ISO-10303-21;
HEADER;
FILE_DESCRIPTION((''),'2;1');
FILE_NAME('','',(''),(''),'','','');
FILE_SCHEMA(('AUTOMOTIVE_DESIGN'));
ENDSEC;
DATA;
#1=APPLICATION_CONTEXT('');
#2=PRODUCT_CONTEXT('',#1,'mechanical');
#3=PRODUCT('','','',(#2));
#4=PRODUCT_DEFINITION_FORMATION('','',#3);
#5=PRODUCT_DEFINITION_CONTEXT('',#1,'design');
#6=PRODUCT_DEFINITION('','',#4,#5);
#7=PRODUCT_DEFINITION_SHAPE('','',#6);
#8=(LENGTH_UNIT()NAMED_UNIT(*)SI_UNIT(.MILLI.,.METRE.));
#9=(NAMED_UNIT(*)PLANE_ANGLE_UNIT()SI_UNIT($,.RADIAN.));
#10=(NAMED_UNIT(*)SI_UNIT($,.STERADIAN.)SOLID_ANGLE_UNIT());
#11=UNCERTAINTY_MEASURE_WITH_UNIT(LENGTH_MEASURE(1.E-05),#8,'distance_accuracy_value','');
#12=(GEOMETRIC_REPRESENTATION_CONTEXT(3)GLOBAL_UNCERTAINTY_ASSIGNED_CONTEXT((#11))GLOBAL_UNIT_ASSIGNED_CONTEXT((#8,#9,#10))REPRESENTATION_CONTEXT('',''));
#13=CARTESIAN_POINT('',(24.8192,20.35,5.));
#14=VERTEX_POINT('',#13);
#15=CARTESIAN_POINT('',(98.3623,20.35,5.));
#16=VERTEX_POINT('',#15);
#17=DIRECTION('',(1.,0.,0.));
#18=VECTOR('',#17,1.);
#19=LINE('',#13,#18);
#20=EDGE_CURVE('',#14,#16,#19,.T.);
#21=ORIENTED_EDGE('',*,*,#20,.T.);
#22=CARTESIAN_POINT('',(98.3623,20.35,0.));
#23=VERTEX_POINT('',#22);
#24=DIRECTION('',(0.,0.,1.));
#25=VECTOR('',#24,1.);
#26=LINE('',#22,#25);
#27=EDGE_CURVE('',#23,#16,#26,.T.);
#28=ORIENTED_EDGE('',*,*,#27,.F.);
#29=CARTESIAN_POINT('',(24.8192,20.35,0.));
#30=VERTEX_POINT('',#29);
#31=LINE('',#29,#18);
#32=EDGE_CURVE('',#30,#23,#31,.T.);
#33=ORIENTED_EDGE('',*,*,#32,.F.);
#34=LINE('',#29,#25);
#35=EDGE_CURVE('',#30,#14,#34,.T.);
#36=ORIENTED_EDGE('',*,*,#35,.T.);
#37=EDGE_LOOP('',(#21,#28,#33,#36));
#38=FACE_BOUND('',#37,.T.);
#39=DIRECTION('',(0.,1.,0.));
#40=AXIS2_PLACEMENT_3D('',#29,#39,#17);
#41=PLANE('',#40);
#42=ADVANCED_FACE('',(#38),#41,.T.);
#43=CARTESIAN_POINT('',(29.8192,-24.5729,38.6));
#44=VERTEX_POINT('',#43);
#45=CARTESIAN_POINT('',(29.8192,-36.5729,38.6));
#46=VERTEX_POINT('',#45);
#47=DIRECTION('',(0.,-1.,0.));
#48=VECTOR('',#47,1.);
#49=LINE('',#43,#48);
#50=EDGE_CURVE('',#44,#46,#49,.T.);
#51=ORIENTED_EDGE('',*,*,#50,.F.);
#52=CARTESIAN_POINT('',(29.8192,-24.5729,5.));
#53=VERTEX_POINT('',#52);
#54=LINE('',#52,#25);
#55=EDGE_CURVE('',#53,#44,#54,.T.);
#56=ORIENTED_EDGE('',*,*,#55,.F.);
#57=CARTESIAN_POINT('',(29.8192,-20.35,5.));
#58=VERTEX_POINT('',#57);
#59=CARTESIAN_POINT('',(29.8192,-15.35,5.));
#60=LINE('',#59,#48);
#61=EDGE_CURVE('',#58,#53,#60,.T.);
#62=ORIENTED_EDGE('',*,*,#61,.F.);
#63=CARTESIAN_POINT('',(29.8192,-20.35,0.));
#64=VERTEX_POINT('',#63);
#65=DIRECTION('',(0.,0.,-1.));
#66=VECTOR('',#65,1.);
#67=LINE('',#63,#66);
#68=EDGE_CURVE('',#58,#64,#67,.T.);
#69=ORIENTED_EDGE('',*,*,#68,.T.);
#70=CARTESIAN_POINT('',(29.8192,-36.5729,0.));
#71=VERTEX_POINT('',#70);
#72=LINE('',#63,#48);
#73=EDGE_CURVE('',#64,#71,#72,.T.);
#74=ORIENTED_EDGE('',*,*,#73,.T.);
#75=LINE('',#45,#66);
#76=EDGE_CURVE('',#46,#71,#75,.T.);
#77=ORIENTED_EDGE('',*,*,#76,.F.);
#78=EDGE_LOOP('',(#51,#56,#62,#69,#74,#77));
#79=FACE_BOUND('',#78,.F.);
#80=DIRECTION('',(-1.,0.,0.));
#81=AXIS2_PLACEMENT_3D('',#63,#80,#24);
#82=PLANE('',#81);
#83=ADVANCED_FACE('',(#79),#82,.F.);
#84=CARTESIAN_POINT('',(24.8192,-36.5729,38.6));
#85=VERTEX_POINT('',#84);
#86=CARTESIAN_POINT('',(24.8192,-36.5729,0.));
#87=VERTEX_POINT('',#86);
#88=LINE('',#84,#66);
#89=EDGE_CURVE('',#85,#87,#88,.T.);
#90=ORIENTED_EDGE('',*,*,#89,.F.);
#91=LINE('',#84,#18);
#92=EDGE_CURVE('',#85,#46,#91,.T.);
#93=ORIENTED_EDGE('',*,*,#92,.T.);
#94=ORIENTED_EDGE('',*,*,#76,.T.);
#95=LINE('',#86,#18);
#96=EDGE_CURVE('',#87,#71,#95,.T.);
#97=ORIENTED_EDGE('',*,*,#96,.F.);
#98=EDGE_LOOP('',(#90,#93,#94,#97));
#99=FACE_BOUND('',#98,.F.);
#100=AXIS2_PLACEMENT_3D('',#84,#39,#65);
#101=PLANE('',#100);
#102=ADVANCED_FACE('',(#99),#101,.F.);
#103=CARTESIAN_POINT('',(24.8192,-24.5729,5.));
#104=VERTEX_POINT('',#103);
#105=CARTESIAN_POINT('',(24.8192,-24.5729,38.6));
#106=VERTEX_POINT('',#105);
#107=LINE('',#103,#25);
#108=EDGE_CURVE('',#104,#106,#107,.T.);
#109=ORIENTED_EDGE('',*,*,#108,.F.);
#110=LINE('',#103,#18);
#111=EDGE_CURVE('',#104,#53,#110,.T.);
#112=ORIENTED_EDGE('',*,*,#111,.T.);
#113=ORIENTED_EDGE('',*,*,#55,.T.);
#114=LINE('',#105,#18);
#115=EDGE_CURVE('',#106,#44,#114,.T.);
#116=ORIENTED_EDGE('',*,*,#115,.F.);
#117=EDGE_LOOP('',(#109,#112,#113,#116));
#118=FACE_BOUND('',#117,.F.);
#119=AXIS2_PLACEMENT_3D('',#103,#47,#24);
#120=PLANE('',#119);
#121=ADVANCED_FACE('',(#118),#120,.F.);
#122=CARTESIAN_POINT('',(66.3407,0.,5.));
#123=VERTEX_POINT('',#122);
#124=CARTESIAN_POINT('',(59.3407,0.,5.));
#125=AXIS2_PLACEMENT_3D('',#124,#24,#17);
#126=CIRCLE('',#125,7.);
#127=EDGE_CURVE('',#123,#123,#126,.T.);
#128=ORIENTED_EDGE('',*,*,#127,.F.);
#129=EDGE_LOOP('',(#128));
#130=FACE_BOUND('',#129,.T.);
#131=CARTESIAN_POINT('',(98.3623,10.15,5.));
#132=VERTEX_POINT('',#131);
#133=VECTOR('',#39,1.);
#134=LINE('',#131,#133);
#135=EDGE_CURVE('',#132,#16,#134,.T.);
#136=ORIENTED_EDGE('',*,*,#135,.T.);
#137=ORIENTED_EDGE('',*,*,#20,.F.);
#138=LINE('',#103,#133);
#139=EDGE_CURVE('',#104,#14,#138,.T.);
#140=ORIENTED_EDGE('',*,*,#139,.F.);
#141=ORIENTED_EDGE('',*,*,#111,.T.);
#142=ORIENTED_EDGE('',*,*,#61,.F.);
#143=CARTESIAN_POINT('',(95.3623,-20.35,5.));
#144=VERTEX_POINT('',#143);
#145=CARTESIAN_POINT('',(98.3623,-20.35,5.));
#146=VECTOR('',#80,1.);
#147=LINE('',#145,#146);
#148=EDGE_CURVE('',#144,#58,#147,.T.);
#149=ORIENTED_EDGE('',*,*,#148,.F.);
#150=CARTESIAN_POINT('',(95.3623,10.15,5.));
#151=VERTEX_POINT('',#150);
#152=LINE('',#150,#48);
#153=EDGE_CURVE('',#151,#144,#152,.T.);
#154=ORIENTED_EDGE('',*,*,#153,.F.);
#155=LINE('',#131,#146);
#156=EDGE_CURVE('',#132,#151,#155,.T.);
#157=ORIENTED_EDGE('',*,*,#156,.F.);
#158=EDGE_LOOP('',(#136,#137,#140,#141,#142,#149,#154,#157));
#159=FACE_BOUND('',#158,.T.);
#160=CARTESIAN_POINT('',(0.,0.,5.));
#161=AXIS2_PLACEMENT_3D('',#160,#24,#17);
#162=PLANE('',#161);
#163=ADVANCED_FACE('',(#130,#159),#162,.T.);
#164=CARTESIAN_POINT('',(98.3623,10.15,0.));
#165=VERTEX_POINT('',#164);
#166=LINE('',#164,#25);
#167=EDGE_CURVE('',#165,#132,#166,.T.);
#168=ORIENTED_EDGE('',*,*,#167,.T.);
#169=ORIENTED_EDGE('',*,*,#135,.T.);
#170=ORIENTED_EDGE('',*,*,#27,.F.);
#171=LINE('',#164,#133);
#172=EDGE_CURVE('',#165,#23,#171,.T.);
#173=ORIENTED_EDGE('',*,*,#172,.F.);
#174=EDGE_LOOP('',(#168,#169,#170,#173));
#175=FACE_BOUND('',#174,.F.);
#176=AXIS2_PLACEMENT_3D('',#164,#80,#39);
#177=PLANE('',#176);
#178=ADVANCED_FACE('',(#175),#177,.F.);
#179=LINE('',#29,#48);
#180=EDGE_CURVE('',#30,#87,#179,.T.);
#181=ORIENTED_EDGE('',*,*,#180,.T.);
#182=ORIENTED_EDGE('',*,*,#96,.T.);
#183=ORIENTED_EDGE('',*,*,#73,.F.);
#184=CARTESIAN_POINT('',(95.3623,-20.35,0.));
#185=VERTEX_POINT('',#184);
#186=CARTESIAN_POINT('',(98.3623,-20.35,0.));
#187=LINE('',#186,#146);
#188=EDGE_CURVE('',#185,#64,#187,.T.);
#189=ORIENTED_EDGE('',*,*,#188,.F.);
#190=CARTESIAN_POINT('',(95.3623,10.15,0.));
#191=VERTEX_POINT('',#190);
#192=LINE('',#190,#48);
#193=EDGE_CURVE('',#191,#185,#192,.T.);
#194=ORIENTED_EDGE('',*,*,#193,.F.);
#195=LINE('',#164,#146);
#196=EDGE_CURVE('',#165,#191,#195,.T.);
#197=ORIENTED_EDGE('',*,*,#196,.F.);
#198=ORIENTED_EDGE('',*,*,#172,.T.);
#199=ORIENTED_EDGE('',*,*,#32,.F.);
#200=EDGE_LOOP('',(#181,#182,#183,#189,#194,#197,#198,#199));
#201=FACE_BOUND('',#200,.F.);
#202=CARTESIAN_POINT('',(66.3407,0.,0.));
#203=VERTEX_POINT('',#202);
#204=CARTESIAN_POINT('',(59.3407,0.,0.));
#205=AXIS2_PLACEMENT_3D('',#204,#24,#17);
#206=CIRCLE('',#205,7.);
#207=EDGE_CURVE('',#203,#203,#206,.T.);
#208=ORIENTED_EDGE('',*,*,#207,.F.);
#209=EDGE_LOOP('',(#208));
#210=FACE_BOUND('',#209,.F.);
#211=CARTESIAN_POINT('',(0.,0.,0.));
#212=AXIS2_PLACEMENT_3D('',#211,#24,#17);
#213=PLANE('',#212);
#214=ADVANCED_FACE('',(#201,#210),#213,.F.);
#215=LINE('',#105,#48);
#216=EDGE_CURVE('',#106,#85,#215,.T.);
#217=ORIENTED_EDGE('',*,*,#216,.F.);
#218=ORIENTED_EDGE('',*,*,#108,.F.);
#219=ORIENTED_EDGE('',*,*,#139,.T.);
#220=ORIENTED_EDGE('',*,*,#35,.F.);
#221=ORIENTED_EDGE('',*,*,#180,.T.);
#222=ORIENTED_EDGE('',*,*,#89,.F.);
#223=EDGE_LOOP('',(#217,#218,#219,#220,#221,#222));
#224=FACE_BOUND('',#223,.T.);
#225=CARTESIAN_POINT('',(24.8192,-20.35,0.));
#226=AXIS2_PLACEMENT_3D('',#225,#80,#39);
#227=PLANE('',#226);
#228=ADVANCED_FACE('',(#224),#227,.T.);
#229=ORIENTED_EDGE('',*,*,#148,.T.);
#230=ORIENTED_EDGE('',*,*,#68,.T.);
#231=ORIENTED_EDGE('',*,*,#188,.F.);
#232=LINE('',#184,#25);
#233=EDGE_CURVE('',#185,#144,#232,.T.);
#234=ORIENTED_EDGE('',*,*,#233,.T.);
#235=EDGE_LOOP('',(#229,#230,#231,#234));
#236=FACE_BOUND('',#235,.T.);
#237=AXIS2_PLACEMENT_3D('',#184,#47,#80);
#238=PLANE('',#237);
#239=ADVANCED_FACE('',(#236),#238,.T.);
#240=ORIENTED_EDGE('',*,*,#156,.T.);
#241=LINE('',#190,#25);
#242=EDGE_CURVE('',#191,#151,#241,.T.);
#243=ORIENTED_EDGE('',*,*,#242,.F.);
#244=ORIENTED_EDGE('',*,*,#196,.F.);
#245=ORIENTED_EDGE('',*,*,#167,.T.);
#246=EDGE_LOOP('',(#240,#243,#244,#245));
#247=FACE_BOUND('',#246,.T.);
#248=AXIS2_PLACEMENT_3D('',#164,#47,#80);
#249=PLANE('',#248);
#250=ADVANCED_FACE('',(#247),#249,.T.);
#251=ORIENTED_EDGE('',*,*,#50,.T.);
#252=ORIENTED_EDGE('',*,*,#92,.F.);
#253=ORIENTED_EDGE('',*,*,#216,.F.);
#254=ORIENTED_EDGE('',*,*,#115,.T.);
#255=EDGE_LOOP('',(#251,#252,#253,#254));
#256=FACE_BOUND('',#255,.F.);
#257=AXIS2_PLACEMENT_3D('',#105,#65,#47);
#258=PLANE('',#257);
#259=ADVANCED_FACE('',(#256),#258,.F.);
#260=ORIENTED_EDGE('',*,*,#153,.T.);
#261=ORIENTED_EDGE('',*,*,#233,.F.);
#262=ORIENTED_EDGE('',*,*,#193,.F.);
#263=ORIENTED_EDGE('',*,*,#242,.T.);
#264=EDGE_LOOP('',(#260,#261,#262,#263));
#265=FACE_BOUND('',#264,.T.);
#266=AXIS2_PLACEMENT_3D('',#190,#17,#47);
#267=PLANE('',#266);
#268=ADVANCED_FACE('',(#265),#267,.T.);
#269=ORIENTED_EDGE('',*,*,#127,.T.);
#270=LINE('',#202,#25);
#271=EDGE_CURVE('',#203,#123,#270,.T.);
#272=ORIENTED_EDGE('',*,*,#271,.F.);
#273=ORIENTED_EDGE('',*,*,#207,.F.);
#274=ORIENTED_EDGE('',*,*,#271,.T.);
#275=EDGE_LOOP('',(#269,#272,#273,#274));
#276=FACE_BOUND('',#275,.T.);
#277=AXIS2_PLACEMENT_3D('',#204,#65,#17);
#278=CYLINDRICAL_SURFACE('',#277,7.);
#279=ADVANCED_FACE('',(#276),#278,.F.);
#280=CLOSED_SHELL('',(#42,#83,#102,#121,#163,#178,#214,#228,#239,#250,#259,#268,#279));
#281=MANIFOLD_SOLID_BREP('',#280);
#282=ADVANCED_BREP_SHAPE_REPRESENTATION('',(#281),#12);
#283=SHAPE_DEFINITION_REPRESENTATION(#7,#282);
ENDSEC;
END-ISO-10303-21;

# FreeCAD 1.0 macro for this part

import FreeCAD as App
import Part
import Sketcher
Q = App.Units.Quantity

doc = App.newDocument("Part")
body = doc.addObject("PartDesign::Body", "Body")

# Sketch on XY plane
sketch1 = doc.addObject("Sketcher::SketchObject", "Sketch")
body.addObject(sketch1)
sketch1.AttachmentSupport = (doc.XY_Plane, [""])
sketch1.MapMode = "FlatFace"
sketch1.addGeometry(Part.LineSegment(App.Vector(24.8192, 20.35, 0), App.Vector(24.8192, -20.35, 0)), False)
sketch1.addGeometry(Part.LineSegment(App.Vector(24.8192, -20.35, 0), App.Vector(95.3623, -20.35, 0)), False)
sketch1.addGeometry(Part.LineSegment(App.Vector(95.3623, -20.35, 0), App.Vector(95.3623, 10.15, 0)), False)
sketch1.addGeometry(Part.LineSegment(App.Vector(95.3623, 10.15, 0), App.Vector(98.3623, 10.15, 0)), False)
sketch1.addGeometry(Part.LineSegment(App.Vector(98.3623, 10.15, 0), App.Vector(98.3623, 20.35, 0)), False)
sketch1.addGeometry(Part.LineSegment(App.Vector(98.3623, 20.35, 0), App.Vector(24.8192, 20.35, 0)), False)
sketch1.addGeometry(Part.Circle(App.Vector(59.3407, 0, 0), App.Vector(0, 0, 1), 7), False)
sketch1.addConstraint(Sketcher.Constraint("Coincident", 0, 2, 1, 1))
sketch1.addConstraint(Sketcher.Constraint("Coincident", 1, 2, 2, 1))
sketch1.addConstraint(Sketcher.Constraint("Coincident", 2, 2, 3, 1))
sketch1.addConstraint(Sketcher.Constraint("Coincident", 3, 2, 4, 1))
sketch1.addConstraint(Sketcher.Constraint("Coincident", 4, 2, 5, 1))
sketch1.addConstraint(Sketcher.Constraint("Coincident", 5, 2, 0, 1))
sketch1.addConstraint(Sketcher.Constraint("Vertical", 0))
sketch1.addConstraint(Sketcher.Constraint("Horizontal", 1))
sketch1.addConstraint(Sketcher.Constraint("Vertical", 2))
sketch1.addConstraint(Sketcher.Constraint("Horizontal", 3))
sketch1.addConstraint(Sketcher.Constraint("Vertical", 4))
sketch1.addConstraint(Sketcher.Constraint("Horizontal", 5))
sketch1.addConstraint(Sketcher.Constraint("PointOnObject", 6, 3, -1))
sketch1.addConstraint(Sketcher.Constraint("Diameter", 6, Q("14 mm")))
sketch1.addConstraint(Sketcher.Constraint("DistanceX", 3, 1, 3, 2, Q("3 mm")))
sketch1.addConstraint(Sketcher.Constraint("DistanceY", 0, 2, 0, 1, Q("40.7 mm")))
sketch1.addConstraint(Sketcher.Constraint("DistanceY", 2, 1, 2, 2, Q("30.5 mm")))
sketch1.addConstraint(Sketcher.Constraint("DistanceX", 1, 1, 1, 2, Q("70.543 mm")))
sketch1.addConstraint(Sketcher.Constraint("DistanceY", 0, 2, -1, 1, Q("20.35 mm")))
sketch1.addConstraint(Sketcher.Constraint("DistanceX", -1, 1, 6, 3, Q("59.3407 mm")))
sketch1.addConstraint(Sketcher.Constraint("DistanceX", -1, 1, 0, 2, Q("24.8192 mm")))
pad1 = doc.addObject("PartDesign::Pad", "Pad")
body.addObject(pad1)
pad1.Profile = sketch1
pad1.Length = 5

# Sketch on YZ plane
sketch2 = doc.addObject("Sketcher::SketchObject", "Sketch001")
body.addObject(sketch2)
sketch2.AttachmentSupport = (doc.YZ_Plane, [""])
sketch2.MapMode = "FlatFace"
sketch2.AttachmentOffset = App.Placement(App.Vector(0, 0, 24.8192), App.Rotation())
sketch2.addGeometry(Part.LineSegment(App.Vector(-36.5729, 0, 0), App.Vector(-36.5729, 38.6, 0)), False)
sketch2.addGeometry(Part.LineSegment(App.Vector(-36.5729, 38.6, 0), App.Vector(-24.5729, 38.6, 0)), False)
sketch2.addGeometry(Part.LineSegment(App.Vector(-24.5729, 38.6, 0), App.Vector(-24.5729, 5, 0)), False)
sketch2.addGeometry(Part.LineSegment(App.Vector(-24.5729, 5, 0), App.Vector(-15.35, 5, 0)), False)
sketch2.addGeometry(Part.LineSegment(App.Vector(-15.35, 5, 0), App.Vector(-15.35, 0, 0)), False)
sketch2.addGeometry(Part.LineSegment(App.Vector(-15.35, 0, 0), App.Vector(-36.5729, 0, 0)), False)
sketch2.addConstraint(Sketcher.Constraint("Coincident", 0, 2, 1, 1))
sketch2.addConstraint(Sketcher.Constraint("Coincident", 1, 2, 2, 1))
sketch2.addConstraint(Sketcher.Constraint("Coincident", 2, 2, 3, 1))
sketch2.addConstraint(Sketcher.Constraint("Coincident", 3, 2, 4, 1))
sketch2.addConstraint(Sketcher.Constraint("Coincident", 4, 2, 5, 1))
sketch2.addConstraint(Sketcher.Constraint("Coincident", 5, 2, 0, 1))
sketch2.addConstraint(Sketcher.Constraint("Vertical", 0))
sketch2.addConstraint(Sketcher.Constraint("Horizontal", 1))
sketch2.addConstraint(Sketcher.Constraint("Vertical", 2))
sketch2.addConstraint(Sketcher.Constraint("Horizontal", 3))
sketch2.addConstraint(Sketcher.Constraint("Vertical", 4))
sketch2.addConstraint(Sketcher.Constraint("Horizontal", 5))
sketch2.addConstraint(Sketcher.Constraint("PointOnObject", 4, 2, -1))
sketch2.addConstraint(Sketcher.Constraint("DistanceY", 4, 2, 4, 1, Q("5 mm")))
sketch2.addConstraint(Sketcher.Constraint("DistanceX", 1, 1, 1, 2, Q("12 mm")))
sketch2.addConstraint(Sketcher.Constraint("DistanceY", 0, 1, 0, 2, Q("38.6 mm")))
sketch2.addConstraint(Sketcher.Constraint("DistanceX", 3, 1, 3, 2, Q("9.223 mm")))
sketch2.addConstraint(Sketcher.Constraint("DistanceX", 3, 2, -1, 1, Q("15.35 mm")))
pad2 = doc.addObject("PartDesign::Pad", "Pad001")
body.addObject(pad2)
pad2.Profile = sketch2
pad2.Length = 5

doc.recompute()
